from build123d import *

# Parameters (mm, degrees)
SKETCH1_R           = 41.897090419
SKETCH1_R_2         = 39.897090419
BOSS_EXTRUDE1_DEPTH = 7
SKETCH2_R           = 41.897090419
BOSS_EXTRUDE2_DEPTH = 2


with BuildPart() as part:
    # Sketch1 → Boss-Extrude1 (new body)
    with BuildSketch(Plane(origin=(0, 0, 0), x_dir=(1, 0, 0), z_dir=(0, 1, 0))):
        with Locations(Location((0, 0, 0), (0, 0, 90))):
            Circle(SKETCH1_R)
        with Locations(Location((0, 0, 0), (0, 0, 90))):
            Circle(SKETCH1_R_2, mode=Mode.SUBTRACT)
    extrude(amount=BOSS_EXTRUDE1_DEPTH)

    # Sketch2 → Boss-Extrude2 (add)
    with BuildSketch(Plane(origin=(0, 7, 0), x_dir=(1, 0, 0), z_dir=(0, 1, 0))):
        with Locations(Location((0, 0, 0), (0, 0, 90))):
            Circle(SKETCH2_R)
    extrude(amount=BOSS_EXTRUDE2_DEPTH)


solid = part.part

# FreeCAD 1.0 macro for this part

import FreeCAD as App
import Part
import Sketcher
Q = App.Units.Quantity

doc = App.newDocument("Part")
body = doc.addObject("PartDesign::Body", "Body")

# Sketch on XZ plane
sketch1 = body.newObject("Sketcher::SketchObject", "Sketch")
sketch1.AttachmentSupport = (doc.getObject("XZ_Plane"), [""])
sketch1.MapMode = "FlatFace"
sketch1.addGeometry(Part.Circle(App.Vector(0, 0, 0), App.Vector(0, 0, 1), 41.89709), False)
sketch1.addGeometry(Part.Circle(App.Vector(0, 0, 0), App.Vector(0, 0, 1), 39.89709), False)
sketch1.addConstraint(Sketcher.Constraint("Coincident", 0, 3, -1, 1))
sketch1.addConstraint(Sketcher.Constraint("Coincident", 1, 3, -1, 1))
sketch1.addConstraint(Sketcher.Constraint("Diameter", 0, Q("83.794181 mm")))
sketch1.addConstraint(Sketcher.Constraint("Diameter", 1, Q("79.794181 mm")))
pad1 = body.newObject("PartDesign::Pad", "Pad")
pad1.Profile = sketch1
pad1.Length = 7
pad1.Reversed = True

# Sketch on XZ plane
sketch2 = body.newObject("Sketcher::SketchObject", "Sketch001")
sketch2.AttachmentSupport = (doc.getObject("XZ_Plane"), [""])
sketch2.MapMode = "FlatFace"
sketch2.AttachmentOffset = App.Placement(App.Vector(0, 0, -7), App.Rotation())
sketch2.addGeometry(Part.Circle(App.Vector(0, 0, 0), App.Vector(0, 0, 1), 41.89709), False)
sketch2.addConstraint(Sketcher.Constraint("Coincident", 0, 3, -1, 1))
sketch2.addConstraint(Sketcher.Constraint("Diameter", 0, Q("83.794181 mm")))
pad2 = body.newObject("PartDesign::Pad", "Pad001")
pad2.Profile = sketch2
pad2.Length = 2
pad2.Reversed = True

doc.recompute()
